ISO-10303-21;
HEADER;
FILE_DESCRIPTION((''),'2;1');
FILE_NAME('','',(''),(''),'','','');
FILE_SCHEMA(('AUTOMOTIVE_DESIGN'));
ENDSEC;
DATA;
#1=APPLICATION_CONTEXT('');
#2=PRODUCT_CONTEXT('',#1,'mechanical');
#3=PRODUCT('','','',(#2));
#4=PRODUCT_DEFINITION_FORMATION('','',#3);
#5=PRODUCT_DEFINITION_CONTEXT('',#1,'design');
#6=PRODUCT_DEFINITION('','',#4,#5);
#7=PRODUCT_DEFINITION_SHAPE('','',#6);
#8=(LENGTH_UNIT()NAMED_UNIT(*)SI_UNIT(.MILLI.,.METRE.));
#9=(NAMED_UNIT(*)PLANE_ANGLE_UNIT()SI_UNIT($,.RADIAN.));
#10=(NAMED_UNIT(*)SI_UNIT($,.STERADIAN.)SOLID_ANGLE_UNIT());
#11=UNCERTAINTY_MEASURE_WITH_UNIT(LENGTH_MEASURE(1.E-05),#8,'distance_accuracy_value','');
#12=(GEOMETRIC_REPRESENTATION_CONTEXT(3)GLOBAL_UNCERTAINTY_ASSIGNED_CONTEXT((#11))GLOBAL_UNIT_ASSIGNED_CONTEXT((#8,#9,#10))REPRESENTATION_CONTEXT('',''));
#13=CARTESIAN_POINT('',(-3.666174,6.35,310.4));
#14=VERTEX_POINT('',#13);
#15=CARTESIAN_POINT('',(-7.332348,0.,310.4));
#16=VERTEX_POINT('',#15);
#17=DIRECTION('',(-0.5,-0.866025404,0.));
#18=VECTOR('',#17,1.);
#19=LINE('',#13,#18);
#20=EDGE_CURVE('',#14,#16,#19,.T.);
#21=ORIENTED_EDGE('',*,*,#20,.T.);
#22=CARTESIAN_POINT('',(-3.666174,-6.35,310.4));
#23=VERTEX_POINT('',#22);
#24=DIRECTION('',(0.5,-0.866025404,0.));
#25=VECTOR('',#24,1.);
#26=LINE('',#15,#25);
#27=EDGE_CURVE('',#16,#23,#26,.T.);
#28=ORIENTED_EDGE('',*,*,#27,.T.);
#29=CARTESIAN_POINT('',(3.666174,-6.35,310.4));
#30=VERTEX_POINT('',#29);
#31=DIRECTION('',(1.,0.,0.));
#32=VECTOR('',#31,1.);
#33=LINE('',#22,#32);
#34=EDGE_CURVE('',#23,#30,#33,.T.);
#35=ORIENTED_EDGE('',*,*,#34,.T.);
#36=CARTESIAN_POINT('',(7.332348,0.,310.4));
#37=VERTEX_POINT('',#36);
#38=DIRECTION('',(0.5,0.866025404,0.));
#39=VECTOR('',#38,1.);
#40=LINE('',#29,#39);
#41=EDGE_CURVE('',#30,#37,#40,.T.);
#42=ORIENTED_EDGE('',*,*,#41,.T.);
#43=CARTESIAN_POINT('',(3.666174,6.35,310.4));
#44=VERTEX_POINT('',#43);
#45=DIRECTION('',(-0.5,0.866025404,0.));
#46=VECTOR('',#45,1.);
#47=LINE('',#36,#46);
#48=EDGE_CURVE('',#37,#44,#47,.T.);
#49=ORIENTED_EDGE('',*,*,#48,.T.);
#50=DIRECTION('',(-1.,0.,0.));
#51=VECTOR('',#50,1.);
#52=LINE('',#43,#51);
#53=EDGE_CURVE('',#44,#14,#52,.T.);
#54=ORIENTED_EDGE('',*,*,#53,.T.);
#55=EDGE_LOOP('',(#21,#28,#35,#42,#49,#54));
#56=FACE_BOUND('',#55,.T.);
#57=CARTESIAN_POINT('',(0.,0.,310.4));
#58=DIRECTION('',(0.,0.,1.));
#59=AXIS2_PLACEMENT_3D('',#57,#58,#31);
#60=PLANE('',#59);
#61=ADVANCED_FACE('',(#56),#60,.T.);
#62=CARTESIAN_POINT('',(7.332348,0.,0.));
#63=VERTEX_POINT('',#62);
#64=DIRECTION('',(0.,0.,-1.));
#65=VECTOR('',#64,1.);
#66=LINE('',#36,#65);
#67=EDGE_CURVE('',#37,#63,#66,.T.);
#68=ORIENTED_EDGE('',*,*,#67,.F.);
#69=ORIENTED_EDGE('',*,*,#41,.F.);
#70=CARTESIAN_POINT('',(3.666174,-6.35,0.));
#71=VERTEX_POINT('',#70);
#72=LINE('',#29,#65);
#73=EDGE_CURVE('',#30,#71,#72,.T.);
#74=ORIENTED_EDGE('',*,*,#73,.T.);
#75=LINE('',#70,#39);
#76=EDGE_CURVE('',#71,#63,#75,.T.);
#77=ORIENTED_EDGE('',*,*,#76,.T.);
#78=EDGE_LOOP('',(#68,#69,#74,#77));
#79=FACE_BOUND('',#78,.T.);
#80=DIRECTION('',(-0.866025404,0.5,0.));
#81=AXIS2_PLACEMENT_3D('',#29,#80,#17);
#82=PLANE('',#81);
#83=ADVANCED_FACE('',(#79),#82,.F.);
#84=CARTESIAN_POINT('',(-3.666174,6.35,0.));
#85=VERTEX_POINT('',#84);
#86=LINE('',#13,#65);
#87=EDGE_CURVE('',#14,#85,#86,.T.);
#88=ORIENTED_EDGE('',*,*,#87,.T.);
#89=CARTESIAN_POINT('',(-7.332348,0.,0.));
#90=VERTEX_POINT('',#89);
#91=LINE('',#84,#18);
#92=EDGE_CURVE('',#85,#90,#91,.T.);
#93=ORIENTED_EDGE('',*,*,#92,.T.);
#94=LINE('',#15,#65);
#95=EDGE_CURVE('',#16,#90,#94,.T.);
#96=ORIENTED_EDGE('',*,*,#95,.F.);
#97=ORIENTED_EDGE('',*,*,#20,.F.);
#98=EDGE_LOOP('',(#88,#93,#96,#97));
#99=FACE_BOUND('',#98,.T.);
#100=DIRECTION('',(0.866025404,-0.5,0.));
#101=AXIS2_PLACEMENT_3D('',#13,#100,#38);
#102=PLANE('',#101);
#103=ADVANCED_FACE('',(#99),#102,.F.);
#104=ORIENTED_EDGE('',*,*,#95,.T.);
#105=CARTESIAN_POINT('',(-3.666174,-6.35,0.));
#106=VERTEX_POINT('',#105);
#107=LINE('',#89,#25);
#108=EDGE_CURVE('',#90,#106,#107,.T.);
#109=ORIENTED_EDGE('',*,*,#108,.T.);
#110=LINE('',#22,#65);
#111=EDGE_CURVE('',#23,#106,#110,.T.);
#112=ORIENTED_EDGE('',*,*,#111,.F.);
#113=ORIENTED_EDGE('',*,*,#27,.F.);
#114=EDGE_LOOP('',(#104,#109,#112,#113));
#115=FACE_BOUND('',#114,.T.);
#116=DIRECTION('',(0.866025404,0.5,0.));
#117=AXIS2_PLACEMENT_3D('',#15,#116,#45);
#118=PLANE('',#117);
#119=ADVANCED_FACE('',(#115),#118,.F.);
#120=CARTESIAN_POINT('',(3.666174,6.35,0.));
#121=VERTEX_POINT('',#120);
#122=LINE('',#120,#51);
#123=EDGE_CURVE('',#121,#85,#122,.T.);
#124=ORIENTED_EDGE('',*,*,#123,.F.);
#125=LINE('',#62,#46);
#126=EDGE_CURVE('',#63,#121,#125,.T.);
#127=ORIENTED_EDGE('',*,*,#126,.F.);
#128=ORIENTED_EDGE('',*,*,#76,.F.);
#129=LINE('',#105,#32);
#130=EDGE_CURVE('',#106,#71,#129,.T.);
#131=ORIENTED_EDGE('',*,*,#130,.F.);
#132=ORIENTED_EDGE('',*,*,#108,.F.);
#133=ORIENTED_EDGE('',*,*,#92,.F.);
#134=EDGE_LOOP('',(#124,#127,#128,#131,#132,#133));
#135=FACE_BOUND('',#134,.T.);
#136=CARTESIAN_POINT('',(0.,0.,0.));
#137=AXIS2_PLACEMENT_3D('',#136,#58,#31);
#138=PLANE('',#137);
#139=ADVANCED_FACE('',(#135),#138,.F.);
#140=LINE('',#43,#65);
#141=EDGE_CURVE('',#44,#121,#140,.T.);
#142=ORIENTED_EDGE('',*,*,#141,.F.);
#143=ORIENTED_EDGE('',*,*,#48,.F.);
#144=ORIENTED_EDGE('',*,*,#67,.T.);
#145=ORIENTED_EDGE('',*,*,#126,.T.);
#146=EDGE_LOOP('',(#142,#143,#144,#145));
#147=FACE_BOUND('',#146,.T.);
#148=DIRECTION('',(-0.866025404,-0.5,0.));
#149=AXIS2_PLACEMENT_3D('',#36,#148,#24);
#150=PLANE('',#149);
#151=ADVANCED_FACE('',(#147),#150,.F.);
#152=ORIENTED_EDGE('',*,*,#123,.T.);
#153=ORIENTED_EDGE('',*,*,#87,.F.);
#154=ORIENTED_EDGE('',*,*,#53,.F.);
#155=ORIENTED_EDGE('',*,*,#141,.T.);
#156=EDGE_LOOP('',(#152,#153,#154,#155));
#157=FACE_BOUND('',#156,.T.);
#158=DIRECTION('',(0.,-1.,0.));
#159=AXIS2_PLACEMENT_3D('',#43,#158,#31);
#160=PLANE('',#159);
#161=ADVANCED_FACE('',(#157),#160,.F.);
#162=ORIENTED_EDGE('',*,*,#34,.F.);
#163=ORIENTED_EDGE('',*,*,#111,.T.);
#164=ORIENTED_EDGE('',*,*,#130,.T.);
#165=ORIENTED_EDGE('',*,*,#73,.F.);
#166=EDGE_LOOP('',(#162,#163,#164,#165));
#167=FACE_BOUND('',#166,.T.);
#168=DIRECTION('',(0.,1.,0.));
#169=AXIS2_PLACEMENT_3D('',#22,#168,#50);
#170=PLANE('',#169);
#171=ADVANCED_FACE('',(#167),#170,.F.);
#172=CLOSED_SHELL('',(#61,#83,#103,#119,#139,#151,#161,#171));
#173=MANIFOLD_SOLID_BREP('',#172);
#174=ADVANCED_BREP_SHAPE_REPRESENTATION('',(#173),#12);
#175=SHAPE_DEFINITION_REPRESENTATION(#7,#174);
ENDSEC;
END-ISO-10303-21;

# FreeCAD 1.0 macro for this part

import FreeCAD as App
import Part
import Sketcher
from FreeCAD import Vector
Q = App.Units.Quantity

doc = App.newDocument("Part")
body = doc.addObject("PartDesign::Body", "Body")

sketch1 = body.newObject("Sketcher::SketchObject", "Sketch")
sketch1.AttachmentSupport = (doc.getObject("XY_Plane"), [""])
sketch1.MapMode = "FlatFace"
sketch1.addGeometry([
    Part.LineSegment(Vector(7, 0, 0), Vector(4, 6, 0)),
    Part.LineSegment(Vector(4, 6, 0), Vector(-4, 6, 0)),
    Part.LineSegment(Vector(-4, 6, 0), Vector(-7, 0, 0)),
    Part.LineSegment(Vector(-7, 0, 0), Vector(-4, -6, 0)),
    Part.LineSegment(Vector(-4, -6, 0), Vector(4, -6, 0)),
    Part.LineSegment(Vector(4, -6, 0), Vector(7, 0, 0)),
], False)
sketch1.addConstraint([
    Sketcher.Constraint("Coincident", 0, 2, 1, 1),
    Sketcher.Constraint("Coincident", 1, 2, 2, 1),
    Sketcher.Constraint("Coincident", 2, 2, 3, 1),
    Sketcher.Constraint("Coincident", 3, 2, 4, 1),
    Sketcher.Constraint("Coincident", 4, 2, 5, 1),
    Sketcher.Constraint("Coincident", 5, 2, 0, 1),
    Sketcher.Constraint("Horizontal", 1),
    Sketcher.Constraint("Horizontal", 4),
    Sketcher.Constraint("Symmetric", 0, 2, 3, 2, -1, 1),
    Sketcher.Constraint("Symmetric", 2, 2, 5, 2, -1, 1),
    Sketcher.Constraint("PointOnObject", 2, 2, -1),
    Sketcher.Constraint("Parallel", 2, 5),
    Sketcher.Constraint("Vertical", 1, 2, 3, 2),
    Sketcher.Constraint("Angle", 0, Q("120 deg")),
    Sketcher.Constraint("DistanceY", 3, 2, 1, 2, 12.7),
    Sketcher.Constraint("DistanceX", 1, 2, 1, 1, 7.332348),
])
pad1 = body.newObject("PartDesign::Pad", "Pad")
pad1.Profile = sketch1
pad1.Length = 310.4

doc.recompute()
